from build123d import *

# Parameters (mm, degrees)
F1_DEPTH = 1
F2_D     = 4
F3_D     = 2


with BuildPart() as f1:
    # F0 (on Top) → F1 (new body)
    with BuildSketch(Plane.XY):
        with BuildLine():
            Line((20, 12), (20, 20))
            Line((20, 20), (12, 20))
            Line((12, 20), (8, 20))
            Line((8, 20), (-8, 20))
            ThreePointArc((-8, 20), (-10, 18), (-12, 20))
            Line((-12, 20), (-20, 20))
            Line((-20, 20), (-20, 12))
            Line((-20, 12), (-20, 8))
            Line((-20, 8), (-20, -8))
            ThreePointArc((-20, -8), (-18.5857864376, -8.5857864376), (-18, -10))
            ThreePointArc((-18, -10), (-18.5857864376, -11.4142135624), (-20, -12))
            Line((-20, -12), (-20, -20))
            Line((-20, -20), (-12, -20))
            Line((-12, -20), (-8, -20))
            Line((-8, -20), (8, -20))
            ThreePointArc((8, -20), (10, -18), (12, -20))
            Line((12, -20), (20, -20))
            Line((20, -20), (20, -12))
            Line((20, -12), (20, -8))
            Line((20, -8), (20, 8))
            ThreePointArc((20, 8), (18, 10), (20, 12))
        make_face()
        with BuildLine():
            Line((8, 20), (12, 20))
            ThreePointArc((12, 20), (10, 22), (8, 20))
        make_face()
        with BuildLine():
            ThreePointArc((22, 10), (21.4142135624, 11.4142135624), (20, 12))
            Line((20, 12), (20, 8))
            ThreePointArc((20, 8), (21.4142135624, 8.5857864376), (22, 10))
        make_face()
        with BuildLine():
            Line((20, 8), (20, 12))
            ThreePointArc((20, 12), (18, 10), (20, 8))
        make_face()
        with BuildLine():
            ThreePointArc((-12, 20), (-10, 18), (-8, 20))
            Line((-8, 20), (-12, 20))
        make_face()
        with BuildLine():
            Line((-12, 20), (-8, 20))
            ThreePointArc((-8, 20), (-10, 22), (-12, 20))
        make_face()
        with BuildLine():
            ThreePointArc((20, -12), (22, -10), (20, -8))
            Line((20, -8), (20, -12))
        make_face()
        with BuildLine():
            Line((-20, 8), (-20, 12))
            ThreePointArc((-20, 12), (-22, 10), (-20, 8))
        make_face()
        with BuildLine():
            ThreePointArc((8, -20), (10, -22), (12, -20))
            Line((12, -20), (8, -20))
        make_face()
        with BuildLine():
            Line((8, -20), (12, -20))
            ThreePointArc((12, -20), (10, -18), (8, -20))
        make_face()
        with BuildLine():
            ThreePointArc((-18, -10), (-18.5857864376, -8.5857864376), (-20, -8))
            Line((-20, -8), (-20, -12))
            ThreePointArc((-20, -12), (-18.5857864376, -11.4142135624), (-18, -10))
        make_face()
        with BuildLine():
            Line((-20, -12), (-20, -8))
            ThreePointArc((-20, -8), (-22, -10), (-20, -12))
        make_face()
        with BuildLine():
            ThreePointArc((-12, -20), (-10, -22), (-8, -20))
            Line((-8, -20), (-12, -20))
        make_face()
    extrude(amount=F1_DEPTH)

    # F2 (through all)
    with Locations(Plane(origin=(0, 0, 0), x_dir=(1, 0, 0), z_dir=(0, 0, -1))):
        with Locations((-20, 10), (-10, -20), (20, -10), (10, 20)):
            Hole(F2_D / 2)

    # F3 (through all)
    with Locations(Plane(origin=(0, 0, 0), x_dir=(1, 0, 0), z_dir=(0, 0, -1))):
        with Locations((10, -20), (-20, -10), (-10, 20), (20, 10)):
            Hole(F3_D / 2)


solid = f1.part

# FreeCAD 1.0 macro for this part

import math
import FreeCAD as App
import Part
import Sketcher

doc = App.newDocument("Part")
body = doc.addObject("PartDesign::Body", "Body")

sketch1 = body.newObject("Sketcher::SketchObject", "Sketch")
sketch1.AttachmentSupport = (doc.getObject("XY_Plane"), [""])
sketch1.MapMode = "FlatFace"
sketch1.addGeometry(Part.LineSegment(App.Vector(20, 12, 0), App.Vector(20, 20, 0)), False)
sketch1.addGeometry(Part.LineSegment(App.Vector(20, 20, 0), App.Vector(12, 20, 0)), False)
sketch1.addGeometry(Part.ArcOfCircle(Part.Circle(App.Vector(10, 20, 0), App.Vector(0, 0, 1), 2), math.radians(0), math.radians(180)), False)
sketch1.addGeometry(Part.LineSegment(App.Vector(8, 20, 0), App.Vector(-8, 20, 0)), False)
sketch1.addGeometry(Part.ArcOfCircle(Part.Circle(App.Vector(-10, 20, 0), App.Vector(0, 0, 1), 2), math.radians(0), math.radians(180)), False)
sketch1.addGeometry(Part.LineSegment(App.Vector(-12, 20, 0), App.Vector(-20, 20, 0)), False)
sketch1.addGeometry(Part.LineSegment(App.Vector(-20, 20, 0), App.Vector(-20, 12, 0)), False)
sketch1.addGeometry(Part.ArcOfCircle(Part.Circle(App.Vector(-20, 10, 0), App.Vector(0, 0, 1), 2), math.radians(90), math.radians(270)), False)
sketch1.addGeometry(Part.LineSegment(App.Vector(-20, 8, 0), App.Vector(-20, -8, 0)), False)
sketch1.addGeometry(Part.ArcOfCircle(Part.Circle(App.Vector(-20, -10, 0), App.Vector(0, 0, 1), 2), math.radians(90), math.radians(270)), False)
sketch1.addGeometry(Part.LineSegment(App.Vector(-20, -12, 0), App.Vector(-20, -20, 0)), False)
sketch1.addGeometry(Part.LineSegment(App.Vector(-20, -20, 0), App.Vector(-12, -20, 0)), False)
sketch1.addGeometry(Part.ArcOfCircle(Part.Circle(App.Vector(-10, -20, 0), App.Vector(0, 0, 1), 2), math.radians(180), math.radians(360)), False)
sketch1.addGeometry(Part.LineSegment(App.Vector(-8, -20, 0), App.Vector(8, -20, 0)), False)
sketch1.addGeometry(Part.ArcOfCircle(Part.Circle(App.Vector(10, -20, 0), App.Vector(0, 0, 1), 2), math.radians(180), math.radians(360)), False)
sketch1.addGeometry(Part.LineSegment(App.Vector(12, -20, 0), App.Vector(20, -20, 0)), False)
sketch1.addGeometry(Part.LineSegment(App.Vector(20, -20, 0), App.Vector(20, -12, 0)), False)
sketch1.addGeometry(Part.ArcOfCircle(Part.Circle(App.Vector(20, -10, 0), App.Vector(0, 0, 1), 2), math.radians(-90), math.radians(90)), False)
sketch1.addGeometry(Part.LineSegment(App.Vector(20, -8, 0), App.Vector(20, 8, 0)), False)
sketch1.addGeometry(Part.ArcOfCircle(Part.Circle(App.Vector(20, 10, 0), App.Vector(0, 0, 1), 2), math.radians(-90), math.radians(0)), False)
sketch1.addGeometry(Part.ArcOfCircle(Part.Circle(App.Vector(20, 10, 0), App.Vector(0, 0, 1), 2), math.radians(0), math.radians(90)), False)
sketch1.addConstraint(Sketcher.Constraint("Coincident", 0, 2, 1, 1))
sketch1.addConstraint(Sketcher.Constraint("Coincident", 1, 2, 2, 1))
sketch1.addConstraint(Sketcher.Constraint("Coincident", 2, 2, 3, 1))
sketch1.addConstraint(Sketcher.Constraint("Coincident", 3, 2, 4, 1))
sketch1.addConstraint(Sketcher.Constraint("Coincident", 4, 2, 5, 1))
sketch1.addConstraint(Sketcher.Constraint("Coincident", 5, 2, 6, 1))
sketch1.addConstraint(Sketcher.Constraint("Coincident", 6, 2, 7, 1))
sketch1.addConstraint(Sketcher.Constraint("Coincident", 7, 2, 8, 1))
sketch1.addConstraint(Sketcher.Constraint("Coincident", 8, 2, 9, 1))
sketch1.addConstraint(Sketcher.Constraint("Coincident", 9, 2, 10, 1))
sketch1.addConstraint(Sketcher.Constraint("Coincident", 10, 2, 11, 1))
sketch1.addConstraint(Sketcher.Constraint("Coincident", 11, 2, 12, 1))
sketch1.addConstraint(Sketcher.Constraint("Coincident", 12, 2, 13, 1))
sketch1.addConstraint(Sketcher.Constraint("Coincident", 13, 2, 14, 1))
sketch1.addConstraint(Sketcher.Constraint("Coincident", 14, 2, 15, 1))
sketch1.addConstraint(Sketcher.Constraint("Coincident", 15, 2, 16, 1))
sketch1.addConstraint(Sketcher.Constraint("Coincident", 16, 2, 17, 1))
sketch1.addConstraint(Sketcher.Constraint("Coincident", 17, 2, 18, 1))
sketch1.addConstraint(Sketcher.Constraint("Coincident", 18, 2, 19, 1))
sketch1.addConstraint(Sketcher.Constraint("Tangent", 19, 2, 20, 1))
sketch1.addConstraint(Sketcher.Constraint("Coincident", 20, 2, 0, 1))
sketch1.addConstraint(Sketcher.Constraint("Vertical", 0))
sketch1.addConstraint(Sketcher.Constraint("Horizontal", 1))
sketch1.addConstraint(Sketcher.Constraint("Horizontal", 3))
sketch1.addConstraint(Sketcher.Constraint("Horizontal", 5))
sketch1.addConstraint(Sketcher.Constraint("Vertical", 6))
sketch1.addConstraint(Sketcher.Constraint("Vertical", 8))
sketch1.addConstraint(Sketcher.Constraint("Vertical", 10))
sketch1.addConstraint(Sketcher.Constraint("Horizontal", 11))
sketch1.addConstraint(Sketcher.Constraint("Horizontal", 13))
sketch1.addConstraint(Sketcher.Constraint("Horizontal", 15))
sketch1.addConstraint(Sketcher.Constraint("Vertical", 16))
sketch1.addConstraint(Sketcher.Constraint("Vertical", 18))
sketch1.addConstraint(Sketcher.Constraint("Equal", 2, 4))
sketch1.addConstraint(Sketcher.Constraint("Equal", 4, 7))
sketch1.addConstraint(Sketcher.Constraint("Equal", 7, 9))
sketch1.addConstraint(Sketcher.Constraint("Equal", 9, 12))
sketch1.addConstraint(Sketcher.Constraint("Equal", 12, 14))
sketch1.addConstraint(Sketcher.Constraint("Equal", 14, 17))
sketch1.addConstraint(Sketcher.Constraint("Equal", 17, 19))
sketch1.addConstraint(Sketcher.Constraint("Equal", 19, 20))
sketch1.addConstraint(Sketcher.Constraint("Symmetric", 2, 3, 12, 3, -1, 1))
sketch1.addConstraint(Sketcher.Constraint("Symmetric", 4, 3, 14, 3, -1, 1))
sketch1.addConstraint(Sketcher.Constraint("Symmetric", 7, 3, 17, 3, -1, 1))
sketch1.addConstraint(Sketcher.Constraint("Symmetric", 9, 3, 19, 3, -1, 1))
sketch1.addConstraint(Sketcher.Constraint("Symmetric", 0, 2, 10, 2, -1, 1))
sketch1.addConstraint(Sketcher.Constraint("Symmetric", 5, 2, 15, 2, -1, 1))
sketch1.addConstraint(Sketcher.Constraint("Symmetric", 2, 3, 4, 3, -2))
sketch1.addConstraint(Sketcher.Constraint("Symmetric", 9, 3, 17, 3, -2))
sketch1.addConstraint(Sketcher.Constraint("Symmetric", 0, 2, 5, 2, -2))
sketch1.addConstraint(Sketcher.Constraint("Horizontal", 4, 3, 0, 2))
sketch1.addConstraint(Sketcher.Constraint("Horizontal", 1, 2, 2, 2))
sketch1.addConstraint(Sketcher.Constraint("Horizontal", 11, 2, 12, 2))
sketch1.addConstraint(Sketcher.Constraint("Horizontal", 20, 3, 19, 2))
sketch1.addConstraint(Sketcher.Constraint("Vertical", 20, 3, 0, 2))
sketch1.addConstraint(Sketcher.Constraint("Vertical", 6, 2, 7, 2))
sketch1.addConstraint(Sketcher.Constraint("Vertical", 16, 2, 17, 2))
sketch1.addConstraint(Sketcher.Constraint("Equal", 15, 0))
sketch1.addConstraint(Sketcher.Constraint("Equal", 13, 8))
sketch1.addConstraint(Sketcher.Constraint("Radius", 2, 2.0))
sketch1.addConstraint(Sketcher.Constraint("DistanceX", 1, 2, 1, 1, 8.0))
sketch1.addConstraint(Sketcher.Constraint("DistanceX", 3, 2, 3, 1, 16.0))
pad1 = body.newObject("PartDesign::Pad", "Pad")
pad1.Profile = sketch1
pad1.Length = 1

sketch2 = body.newObject("Sketcher::SketchObject", "Sketch001")
sketch2.AttachmentSupport = (doc.getObject("XY_Plane"), [""])
sketch2.MapMode = "FlatFace"
sketch2.addGeometry(Part.Circle(App.Vector(-20, -10, 0), App.Vector(0, 0, 1), 2), False)
sketch2.addGeometry(Part.Circle(App.Vector(-10, 20, 0), App.Vector(0, 0, 1), 2), False)
sketch2.addGeometry(Part.Circle(App.Vector(20, 10, 0), App.Vector(0, 0, 1), 2), False)
sketch2.addGeometry(Part.Circle(App.Vector(10, -20, 0), App.Vector(0, 0, 1), 2), False)
sketch2.addConstraint(Sketcher.Constraint("Equal", 0, 1))
sketch2.addConstraint(Sketcher.Constraint("Equal", 1, 2))
sketch2.addConstraint(Sketcher.Constraint("Equal", 2, 3))
sketch2.addConstraint(Sketcher.Constraint("Symmetric", 0, 3, 2, 3, -1, 1))
sketch2.addConstraint(Sketcher.Constraint("Symmetric", 1, 3, 3, 3, -1, 1))
sketch2.addConstraint(Sketcher.Constraint("Diameter", 0, 4.0))
sketch2.addConstraint(Sketcher.Constraint("DistanceX", 0, 3, -1, 1, 20.0))
sketch2.addConstraint(Sketcher.Constraint("DistanceY", 0, 3, -1, 1, 10.0))
sketch2.addConstraint(Sketcher.Constraint("DistanceX", 1, 3, -1, 1, 10.0))
sketch2.addConstraint(Sketcher.Constraint("DistanceY", -1, 1, 1, 3, 20.0))
doc.recompute()
hole = body.newObject("PartDesign::Hole", "Hole")
hole.Profile = sketch2
hole.ThreadType = "None"
hole.Diameter = 4
hole.DepthType = "ThroughAll"
hole.Reversed = True

sketch3 = body.newObject("Sketcher::SketchObject", "Sketch002")
sketch3.AttachmentSupport = (doc.getObject("XY_Plane"), [""])
sketch3.MapMode = "FlatFace"
sketch3.addGeometry(Part.Circle(App.Vector(10, 20, 0), App.Vector(0, 0, 1), 1), False)
sketch3.addGeometry(Part.Circle(App.Vector(-20, 10, 0), App.Vector(0, 0, 1), 1), False)
sketch3.addGeometry(Part.Circle(App.Vector(-10, -20, 0), App.Vector(0, 0, 1), 1), False)
sketch3.addGeometry(Part.Circle(App.Vector(20, -10, 0), App.Vector(0, 0, 1), 1), False)
sketch3.addConstraint(Sketcher.Constraint("Equal", 0, 1))
sketch3.addConstraint(Sketcher.Constraint("Equal", 1, 2))
sketch3.addConstraint(Sketcher.Constraint("Equal", 2, 3))
sketch3.addConstraint(Sketcher.Constraint("Symmetric", 0, 3, 2, 3, -1, 1))
sketch3.addConstraint(Sketcher.Constraint("Symmetric", 1, 3, 3, 3, -1, 1))
sketch3.addConstraint(Sketcher.Constraint("Diameter", 0, 2.0))
sketch3.addConstraint(Sketcher.Constraint("DistanceX", -1, 1, 0, 3, 10.0))
sketch3.addConstraint(Sketcher.Constraint("DistanceY", -1, 1, 0, 3, 20.0))
sketch3.addConstraint(Sketcher.Constraint("DistanceX", 1, 3, -1, 1, 20.0))
sketch3.addConstraint(Sketcher.Constraint("DistanceY", -1, 1, 1, 3, 10.0))
doc.recompute()
hole2 = body.newObject("PartDesign::Hole", "Hole001")
hole2.Profile = sketch3
hole2.ThreadType = "None"
hole2.Diameter = 2
hole2.DepthType = "ThroughAll"
hole2.Reversed = True

doc.recompute()
